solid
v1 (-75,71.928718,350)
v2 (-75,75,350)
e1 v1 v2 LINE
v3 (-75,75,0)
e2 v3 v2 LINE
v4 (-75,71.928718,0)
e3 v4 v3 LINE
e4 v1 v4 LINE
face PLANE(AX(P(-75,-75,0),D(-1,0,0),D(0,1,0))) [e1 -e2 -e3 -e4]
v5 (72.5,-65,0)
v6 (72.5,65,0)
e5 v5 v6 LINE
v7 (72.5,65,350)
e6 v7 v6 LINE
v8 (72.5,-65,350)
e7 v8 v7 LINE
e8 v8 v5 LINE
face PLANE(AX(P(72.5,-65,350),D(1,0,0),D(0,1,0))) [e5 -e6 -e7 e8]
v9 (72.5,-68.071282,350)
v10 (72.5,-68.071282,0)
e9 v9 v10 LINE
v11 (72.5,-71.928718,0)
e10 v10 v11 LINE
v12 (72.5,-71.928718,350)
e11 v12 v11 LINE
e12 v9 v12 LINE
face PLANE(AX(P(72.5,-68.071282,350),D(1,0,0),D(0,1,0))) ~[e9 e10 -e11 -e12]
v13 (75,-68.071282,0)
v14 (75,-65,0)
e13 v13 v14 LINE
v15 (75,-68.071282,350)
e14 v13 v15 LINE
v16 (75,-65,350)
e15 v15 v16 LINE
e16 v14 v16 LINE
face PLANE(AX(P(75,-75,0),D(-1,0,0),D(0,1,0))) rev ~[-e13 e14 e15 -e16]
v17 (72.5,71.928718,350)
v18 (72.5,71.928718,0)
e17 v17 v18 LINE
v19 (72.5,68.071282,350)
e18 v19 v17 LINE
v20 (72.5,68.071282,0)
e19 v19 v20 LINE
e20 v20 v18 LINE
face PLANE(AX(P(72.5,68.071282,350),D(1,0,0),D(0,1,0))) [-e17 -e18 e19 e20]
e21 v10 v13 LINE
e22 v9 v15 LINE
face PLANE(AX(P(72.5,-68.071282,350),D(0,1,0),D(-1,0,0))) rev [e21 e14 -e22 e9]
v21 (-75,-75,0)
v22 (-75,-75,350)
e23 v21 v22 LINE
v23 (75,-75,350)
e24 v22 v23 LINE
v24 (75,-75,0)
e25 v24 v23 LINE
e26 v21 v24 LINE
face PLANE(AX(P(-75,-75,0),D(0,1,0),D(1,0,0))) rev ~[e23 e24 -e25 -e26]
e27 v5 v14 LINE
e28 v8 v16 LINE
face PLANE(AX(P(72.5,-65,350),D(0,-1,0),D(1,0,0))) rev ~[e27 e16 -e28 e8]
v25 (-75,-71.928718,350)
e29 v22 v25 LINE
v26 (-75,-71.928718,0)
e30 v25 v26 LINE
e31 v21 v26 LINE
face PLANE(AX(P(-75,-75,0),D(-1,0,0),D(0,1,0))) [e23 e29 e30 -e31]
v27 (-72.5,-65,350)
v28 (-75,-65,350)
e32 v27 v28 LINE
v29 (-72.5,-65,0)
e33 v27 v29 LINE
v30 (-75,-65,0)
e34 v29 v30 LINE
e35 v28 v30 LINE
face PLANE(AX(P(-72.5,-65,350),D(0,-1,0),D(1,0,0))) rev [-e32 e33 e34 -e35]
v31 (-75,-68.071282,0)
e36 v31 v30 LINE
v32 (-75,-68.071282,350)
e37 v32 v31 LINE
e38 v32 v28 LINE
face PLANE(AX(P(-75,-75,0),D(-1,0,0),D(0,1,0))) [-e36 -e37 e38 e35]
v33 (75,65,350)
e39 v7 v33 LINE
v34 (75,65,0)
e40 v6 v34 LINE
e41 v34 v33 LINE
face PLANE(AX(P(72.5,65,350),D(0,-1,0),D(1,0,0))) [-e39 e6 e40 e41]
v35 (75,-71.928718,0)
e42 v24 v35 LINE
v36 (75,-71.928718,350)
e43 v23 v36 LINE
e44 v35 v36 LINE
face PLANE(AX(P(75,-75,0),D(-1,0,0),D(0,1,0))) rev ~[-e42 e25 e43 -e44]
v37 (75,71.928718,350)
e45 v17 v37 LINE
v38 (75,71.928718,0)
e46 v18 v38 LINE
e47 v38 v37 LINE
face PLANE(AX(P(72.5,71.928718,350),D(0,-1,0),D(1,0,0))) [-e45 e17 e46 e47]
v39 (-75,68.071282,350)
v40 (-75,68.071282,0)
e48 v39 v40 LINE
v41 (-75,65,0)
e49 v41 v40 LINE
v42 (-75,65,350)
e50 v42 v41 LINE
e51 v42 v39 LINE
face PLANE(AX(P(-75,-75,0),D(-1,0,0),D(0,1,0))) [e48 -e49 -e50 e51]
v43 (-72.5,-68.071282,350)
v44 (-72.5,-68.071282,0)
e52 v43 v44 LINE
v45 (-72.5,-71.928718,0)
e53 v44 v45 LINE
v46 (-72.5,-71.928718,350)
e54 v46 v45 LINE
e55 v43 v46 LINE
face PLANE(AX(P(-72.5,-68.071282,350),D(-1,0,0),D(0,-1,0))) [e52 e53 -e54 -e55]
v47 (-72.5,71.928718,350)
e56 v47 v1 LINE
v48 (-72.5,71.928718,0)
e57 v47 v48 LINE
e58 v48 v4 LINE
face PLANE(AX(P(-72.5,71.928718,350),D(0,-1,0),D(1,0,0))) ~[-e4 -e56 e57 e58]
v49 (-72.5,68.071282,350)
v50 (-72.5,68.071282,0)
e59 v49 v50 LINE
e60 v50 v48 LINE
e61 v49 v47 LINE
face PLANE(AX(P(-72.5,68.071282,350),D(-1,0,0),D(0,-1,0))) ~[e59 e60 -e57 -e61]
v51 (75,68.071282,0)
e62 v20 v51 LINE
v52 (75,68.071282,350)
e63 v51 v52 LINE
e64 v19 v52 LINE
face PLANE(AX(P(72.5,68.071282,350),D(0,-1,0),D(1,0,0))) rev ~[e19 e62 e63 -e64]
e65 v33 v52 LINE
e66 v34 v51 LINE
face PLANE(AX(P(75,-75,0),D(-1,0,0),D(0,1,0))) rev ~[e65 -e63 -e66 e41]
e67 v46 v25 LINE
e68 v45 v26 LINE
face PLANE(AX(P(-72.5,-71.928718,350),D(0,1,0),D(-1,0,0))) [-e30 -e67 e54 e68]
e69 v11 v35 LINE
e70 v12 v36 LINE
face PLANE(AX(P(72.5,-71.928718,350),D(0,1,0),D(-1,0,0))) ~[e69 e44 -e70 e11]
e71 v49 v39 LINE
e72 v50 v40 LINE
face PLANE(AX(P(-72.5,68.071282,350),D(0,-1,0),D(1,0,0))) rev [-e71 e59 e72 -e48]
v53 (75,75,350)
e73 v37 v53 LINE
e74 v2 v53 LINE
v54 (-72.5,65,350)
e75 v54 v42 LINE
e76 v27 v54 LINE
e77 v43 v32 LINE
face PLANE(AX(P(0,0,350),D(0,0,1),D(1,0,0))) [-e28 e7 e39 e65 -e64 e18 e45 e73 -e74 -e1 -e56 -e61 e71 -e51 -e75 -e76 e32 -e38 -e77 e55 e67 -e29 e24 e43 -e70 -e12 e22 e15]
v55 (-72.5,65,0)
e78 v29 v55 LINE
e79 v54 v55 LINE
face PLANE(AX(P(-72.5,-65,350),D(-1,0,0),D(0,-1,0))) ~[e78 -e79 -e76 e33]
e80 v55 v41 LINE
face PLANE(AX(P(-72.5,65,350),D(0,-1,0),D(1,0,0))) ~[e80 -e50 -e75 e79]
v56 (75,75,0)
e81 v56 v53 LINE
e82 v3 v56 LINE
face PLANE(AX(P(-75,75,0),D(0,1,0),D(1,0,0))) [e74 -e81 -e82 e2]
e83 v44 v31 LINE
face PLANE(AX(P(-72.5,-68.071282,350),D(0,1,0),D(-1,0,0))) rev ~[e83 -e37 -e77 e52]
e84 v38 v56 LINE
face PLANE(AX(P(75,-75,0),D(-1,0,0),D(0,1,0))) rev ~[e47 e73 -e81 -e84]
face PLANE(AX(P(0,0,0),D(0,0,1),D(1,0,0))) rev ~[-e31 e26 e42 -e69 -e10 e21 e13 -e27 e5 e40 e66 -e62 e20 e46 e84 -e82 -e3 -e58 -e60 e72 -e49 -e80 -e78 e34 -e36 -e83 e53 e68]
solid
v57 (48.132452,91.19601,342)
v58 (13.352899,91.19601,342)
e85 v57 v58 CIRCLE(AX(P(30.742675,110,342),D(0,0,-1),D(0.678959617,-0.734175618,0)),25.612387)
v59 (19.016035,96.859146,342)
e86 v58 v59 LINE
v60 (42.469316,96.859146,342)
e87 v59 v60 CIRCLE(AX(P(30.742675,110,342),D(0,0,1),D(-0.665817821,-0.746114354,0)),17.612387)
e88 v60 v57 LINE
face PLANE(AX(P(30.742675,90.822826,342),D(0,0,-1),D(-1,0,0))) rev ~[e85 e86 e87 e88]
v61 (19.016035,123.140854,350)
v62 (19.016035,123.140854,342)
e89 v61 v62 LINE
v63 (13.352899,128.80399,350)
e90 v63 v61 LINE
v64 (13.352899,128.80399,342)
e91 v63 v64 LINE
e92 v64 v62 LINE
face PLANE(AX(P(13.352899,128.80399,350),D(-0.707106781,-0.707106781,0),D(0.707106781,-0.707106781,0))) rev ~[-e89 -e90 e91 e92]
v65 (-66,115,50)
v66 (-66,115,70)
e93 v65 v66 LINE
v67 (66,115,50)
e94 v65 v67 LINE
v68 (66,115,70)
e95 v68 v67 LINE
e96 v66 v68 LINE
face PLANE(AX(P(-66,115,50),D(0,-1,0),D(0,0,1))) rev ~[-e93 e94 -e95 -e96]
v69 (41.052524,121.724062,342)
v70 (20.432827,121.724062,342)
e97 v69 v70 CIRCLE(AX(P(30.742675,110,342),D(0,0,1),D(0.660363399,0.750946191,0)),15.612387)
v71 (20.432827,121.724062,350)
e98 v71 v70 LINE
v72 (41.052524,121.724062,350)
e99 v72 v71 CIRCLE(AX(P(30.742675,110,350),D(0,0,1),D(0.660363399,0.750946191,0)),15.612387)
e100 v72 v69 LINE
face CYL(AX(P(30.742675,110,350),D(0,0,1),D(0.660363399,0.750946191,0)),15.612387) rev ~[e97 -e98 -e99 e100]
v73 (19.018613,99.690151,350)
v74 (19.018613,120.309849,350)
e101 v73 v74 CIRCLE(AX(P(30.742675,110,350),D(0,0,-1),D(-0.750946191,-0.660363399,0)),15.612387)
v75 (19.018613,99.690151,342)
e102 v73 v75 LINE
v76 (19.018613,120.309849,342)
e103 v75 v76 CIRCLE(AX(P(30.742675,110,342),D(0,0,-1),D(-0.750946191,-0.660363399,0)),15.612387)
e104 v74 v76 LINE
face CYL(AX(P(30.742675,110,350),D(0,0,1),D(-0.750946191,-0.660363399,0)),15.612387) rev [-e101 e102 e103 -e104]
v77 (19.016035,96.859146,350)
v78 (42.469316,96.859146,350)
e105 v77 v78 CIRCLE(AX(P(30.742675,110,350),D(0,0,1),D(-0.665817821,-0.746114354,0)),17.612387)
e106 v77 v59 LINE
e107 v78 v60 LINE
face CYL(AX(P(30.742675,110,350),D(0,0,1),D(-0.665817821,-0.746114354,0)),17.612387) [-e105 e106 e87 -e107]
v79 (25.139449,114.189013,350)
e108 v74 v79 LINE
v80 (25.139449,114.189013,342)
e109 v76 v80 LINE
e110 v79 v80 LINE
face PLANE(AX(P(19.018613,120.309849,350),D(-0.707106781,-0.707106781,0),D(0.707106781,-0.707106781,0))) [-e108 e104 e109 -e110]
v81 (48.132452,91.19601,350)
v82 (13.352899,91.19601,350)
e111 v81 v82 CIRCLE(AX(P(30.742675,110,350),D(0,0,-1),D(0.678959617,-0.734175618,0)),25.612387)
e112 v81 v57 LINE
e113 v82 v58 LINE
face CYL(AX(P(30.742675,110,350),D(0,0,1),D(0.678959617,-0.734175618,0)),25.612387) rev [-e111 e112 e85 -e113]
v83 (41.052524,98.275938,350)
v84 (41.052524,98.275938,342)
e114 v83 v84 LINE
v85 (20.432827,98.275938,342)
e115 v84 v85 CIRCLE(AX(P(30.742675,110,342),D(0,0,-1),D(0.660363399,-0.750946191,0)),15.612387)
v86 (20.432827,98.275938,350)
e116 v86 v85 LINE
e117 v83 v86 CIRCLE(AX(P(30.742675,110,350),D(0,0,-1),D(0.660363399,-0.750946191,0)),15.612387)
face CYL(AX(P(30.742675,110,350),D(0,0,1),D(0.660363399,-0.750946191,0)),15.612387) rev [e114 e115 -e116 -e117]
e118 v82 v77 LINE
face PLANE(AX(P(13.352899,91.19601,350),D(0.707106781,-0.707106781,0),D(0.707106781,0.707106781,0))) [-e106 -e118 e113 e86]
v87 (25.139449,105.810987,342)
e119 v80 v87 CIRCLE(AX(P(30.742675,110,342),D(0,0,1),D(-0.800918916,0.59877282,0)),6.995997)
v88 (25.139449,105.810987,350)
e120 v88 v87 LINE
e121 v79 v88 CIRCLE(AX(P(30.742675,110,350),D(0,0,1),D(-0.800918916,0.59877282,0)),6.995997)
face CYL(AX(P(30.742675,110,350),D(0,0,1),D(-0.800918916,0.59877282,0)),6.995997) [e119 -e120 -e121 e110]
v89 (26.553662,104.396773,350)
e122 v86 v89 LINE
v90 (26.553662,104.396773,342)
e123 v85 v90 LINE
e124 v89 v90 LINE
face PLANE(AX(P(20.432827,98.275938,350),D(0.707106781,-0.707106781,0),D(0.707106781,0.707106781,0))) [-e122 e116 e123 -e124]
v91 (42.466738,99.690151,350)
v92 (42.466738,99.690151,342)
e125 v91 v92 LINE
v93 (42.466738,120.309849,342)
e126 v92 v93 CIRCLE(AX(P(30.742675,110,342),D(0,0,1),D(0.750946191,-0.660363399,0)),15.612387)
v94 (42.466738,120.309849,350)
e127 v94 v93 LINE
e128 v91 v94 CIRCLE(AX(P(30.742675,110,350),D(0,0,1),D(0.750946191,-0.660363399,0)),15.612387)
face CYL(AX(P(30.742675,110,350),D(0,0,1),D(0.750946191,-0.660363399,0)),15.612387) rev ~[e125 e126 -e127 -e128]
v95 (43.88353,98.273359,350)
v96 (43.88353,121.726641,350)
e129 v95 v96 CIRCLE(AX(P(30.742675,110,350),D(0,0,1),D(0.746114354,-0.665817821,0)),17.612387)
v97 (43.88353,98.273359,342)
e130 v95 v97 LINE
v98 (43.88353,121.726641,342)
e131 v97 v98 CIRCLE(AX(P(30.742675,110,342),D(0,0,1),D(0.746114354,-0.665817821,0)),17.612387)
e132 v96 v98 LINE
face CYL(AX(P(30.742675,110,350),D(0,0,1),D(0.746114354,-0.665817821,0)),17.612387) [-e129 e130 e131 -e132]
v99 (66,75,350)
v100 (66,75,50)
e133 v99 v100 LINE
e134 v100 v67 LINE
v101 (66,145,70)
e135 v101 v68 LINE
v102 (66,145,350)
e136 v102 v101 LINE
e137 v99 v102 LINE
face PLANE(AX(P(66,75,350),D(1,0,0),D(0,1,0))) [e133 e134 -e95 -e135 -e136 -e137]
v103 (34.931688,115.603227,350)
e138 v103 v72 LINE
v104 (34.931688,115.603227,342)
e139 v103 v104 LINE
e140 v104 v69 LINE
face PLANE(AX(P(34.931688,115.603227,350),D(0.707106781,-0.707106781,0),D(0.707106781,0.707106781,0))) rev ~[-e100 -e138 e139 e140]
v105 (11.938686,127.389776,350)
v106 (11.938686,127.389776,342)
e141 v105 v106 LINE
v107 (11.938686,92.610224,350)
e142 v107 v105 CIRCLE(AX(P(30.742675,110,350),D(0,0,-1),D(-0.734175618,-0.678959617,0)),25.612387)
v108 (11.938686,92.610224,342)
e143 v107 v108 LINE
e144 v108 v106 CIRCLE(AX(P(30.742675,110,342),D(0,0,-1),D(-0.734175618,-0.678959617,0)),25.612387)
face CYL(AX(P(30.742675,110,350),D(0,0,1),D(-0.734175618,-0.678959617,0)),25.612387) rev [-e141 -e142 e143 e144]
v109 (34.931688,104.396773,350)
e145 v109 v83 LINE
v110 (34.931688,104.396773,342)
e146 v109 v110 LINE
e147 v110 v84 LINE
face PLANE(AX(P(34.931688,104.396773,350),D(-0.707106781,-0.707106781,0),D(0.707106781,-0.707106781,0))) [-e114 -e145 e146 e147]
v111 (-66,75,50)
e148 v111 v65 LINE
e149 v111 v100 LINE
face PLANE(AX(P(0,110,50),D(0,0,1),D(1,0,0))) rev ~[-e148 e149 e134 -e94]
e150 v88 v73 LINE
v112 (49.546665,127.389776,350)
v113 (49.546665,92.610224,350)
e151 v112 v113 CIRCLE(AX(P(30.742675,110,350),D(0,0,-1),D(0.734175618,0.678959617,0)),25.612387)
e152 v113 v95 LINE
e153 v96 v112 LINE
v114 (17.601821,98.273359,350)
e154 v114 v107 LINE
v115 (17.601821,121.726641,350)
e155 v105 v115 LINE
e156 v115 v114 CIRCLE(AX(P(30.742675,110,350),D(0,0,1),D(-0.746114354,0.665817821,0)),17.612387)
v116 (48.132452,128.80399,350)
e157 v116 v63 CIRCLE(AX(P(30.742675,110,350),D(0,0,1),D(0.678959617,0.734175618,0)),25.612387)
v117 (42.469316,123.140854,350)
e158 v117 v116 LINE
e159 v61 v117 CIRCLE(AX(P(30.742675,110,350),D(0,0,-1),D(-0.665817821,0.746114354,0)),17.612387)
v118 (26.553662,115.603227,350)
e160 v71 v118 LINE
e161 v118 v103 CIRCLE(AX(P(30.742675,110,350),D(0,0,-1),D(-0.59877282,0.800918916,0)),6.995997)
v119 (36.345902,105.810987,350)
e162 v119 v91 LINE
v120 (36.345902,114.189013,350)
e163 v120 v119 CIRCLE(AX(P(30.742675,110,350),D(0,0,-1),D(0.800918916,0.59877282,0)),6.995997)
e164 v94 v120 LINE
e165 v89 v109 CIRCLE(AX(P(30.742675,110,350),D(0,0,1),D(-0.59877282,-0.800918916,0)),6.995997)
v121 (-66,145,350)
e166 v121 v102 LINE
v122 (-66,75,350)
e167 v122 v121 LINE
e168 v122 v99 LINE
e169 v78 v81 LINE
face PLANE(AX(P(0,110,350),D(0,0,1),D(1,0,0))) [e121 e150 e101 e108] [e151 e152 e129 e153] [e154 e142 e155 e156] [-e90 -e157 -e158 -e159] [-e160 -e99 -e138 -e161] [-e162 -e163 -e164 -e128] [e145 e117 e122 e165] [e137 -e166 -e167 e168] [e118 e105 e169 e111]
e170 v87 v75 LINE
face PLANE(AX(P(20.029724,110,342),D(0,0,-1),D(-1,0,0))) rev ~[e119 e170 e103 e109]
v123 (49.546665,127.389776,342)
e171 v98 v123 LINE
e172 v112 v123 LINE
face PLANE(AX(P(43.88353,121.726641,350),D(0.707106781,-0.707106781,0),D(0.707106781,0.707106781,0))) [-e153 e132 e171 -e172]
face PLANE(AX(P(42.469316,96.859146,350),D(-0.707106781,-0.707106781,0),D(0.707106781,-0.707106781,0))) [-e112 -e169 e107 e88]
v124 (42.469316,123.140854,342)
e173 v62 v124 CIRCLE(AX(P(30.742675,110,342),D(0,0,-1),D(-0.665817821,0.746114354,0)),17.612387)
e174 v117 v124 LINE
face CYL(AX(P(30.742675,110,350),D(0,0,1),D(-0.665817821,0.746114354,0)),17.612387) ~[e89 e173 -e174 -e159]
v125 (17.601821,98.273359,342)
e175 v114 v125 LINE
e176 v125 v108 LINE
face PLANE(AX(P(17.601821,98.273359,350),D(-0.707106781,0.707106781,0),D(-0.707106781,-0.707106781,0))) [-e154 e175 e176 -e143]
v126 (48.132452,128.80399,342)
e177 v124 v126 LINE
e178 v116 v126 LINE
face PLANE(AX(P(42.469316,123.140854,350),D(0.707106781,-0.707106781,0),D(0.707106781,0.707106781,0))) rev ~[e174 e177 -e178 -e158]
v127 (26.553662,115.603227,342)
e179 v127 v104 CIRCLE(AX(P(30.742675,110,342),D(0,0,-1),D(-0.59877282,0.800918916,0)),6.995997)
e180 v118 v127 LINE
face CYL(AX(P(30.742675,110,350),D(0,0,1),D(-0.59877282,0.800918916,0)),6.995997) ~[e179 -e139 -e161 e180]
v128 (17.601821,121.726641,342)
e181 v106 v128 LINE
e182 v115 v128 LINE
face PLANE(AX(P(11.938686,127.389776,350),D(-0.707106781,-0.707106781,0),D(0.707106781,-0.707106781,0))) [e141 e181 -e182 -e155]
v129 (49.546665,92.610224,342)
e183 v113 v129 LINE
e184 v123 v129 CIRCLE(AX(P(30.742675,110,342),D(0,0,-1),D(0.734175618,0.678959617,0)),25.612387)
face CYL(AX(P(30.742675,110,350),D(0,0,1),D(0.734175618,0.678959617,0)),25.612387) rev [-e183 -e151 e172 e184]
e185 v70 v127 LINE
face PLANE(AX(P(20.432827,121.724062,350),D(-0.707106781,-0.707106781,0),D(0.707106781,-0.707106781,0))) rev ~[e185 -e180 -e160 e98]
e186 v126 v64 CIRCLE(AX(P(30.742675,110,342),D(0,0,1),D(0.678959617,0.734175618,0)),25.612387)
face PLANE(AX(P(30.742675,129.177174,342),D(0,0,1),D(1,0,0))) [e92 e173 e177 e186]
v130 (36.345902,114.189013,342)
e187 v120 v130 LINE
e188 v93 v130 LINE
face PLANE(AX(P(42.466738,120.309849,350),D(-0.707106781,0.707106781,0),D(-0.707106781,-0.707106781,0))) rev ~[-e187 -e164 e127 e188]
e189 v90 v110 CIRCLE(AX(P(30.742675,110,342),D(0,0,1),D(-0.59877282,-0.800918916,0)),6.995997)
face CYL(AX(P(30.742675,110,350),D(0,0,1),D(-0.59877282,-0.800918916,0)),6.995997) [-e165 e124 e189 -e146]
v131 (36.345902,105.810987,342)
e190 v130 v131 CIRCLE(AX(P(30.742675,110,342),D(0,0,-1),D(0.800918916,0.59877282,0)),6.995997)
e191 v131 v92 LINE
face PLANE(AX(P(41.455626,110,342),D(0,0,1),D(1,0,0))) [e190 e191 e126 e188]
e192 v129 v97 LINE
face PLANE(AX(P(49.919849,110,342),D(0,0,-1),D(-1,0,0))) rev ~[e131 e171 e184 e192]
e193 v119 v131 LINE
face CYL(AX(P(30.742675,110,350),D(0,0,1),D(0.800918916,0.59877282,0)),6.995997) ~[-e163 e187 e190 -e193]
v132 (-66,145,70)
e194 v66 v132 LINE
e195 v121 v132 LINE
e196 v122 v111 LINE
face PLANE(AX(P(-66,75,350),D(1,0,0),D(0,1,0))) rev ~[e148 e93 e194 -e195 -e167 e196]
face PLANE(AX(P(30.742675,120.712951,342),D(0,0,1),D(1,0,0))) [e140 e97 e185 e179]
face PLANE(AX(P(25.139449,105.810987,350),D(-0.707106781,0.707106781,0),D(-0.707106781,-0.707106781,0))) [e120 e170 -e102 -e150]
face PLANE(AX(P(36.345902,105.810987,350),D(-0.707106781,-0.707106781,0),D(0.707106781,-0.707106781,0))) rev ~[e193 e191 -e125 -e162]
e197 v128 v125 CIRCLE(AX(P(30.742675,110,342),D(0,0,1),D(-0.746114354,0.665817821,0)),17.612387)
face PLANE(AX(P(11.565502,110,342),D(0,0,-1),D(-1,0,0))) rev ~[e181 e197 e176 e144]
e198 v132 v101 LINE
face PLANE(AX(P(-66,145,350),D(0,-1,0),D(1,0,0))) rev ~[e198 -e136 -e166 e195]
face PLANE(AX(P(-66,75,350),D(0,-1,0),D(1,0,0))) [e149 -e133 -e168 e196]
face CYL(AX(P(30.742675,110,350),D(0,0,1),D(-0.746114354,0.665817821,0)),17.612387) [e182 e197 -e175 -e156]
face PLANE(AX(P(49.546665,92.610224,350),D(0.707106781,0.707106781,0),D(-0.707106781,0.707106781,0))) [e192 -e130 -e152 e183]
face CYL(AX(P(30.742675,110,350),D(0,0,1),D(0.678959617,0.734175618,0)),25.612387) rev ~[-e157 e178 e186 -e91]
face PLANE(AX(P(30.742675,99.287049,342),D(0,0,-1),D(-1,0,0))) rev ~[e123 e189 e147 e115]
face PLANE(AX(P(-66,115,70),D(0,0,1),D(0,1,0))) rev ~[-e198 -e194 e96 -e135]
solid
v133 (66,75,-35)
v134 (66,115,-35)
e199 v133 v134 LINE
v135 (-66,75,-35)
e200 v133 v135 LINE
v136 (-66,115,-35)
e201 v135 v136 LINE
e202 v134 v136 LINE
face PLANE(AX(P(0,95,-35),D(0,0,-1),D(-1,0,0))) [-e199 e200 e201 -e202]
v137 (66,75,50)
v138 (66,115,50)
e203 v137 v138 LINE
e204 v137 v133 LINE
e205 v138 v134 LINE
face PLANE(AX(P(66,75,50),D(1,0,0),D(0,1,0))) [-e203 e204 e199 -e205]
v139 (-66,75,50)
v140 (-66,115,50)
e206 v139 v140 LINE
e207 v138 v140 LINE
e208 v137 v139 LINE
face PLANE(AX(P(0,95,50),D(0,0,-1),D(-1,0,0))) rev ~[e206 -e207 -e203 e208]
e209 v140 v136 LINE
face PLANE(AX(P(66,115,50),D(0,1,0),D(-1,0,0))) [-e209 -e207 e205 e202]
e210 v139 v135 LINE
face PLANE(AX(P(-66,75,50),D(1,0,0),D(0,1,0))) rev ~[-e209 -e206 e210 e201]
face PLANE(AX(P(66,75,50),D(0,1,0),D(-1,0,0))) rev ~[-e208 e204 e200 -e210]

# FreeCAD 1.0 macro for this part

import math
import FreeCAD as App
import Part
import Sketcher

V = App.Vector
Q = App.Units.Quantity

doc = App.newDocument("Part")
body = doc.addObject("PartDesign::Body", "Body")

# Sketch on XY plane
sketch1 = doc.addObject("Sketcher::SketchObject", "Sketch")
body.addObject(sketch1)
sketch1.AttachmentSupport = (doc.XY_Plane, [""])
sketch1.MapMode = "FlatFace"
sketch1.addGeometry(Part.LineSegment(V(-75, 75, 0), V(-75, -75, 0)), False)
sketch1.addGeometry(Part.LineSegment(V(-75, -75, 0), V(75, -75, 0)), False)
sketch1.addGeometry(Part.LineSegment(V(75, -75, 0), V(75, 75, 0)), False)
sketch1.addGeometry(Part.LineSegment(V(75, 75, 0), V(-75, 75, 0)), False)
sketch1.addConstraint(Sketcher.Constraint("Coincident", 0, 2, 1, 1))
sketch1.addConstraint(Sketcher.Constraint("Coincident", 1, 2, 2, 1))
sketch1.addConstraint(Sketcher.Constraint("Coincident", 2, 2, 3, 1))
sketch1.addConstraint(Sketcher.Constraint("Coincident", 3, 2, 0, 1))
sketch1.addConstraint(Sketcher.Constraint("Vertical", 0))
sketch1.addConstraint(Sketcher.Constraint("Horizontal", 1))
sketch1.addConstraint(Sketcher.Constraint("Vertical", 2))
sketch1.addConstraint(Sketcher.Constraint("Horizontal", 3))
sketch1.addConstraint(Sketcher.Constraint("Symmetric", 0, 2, 2, 2, -1, 1))
sketch1.addConstraint(Sketcher.Constraint("Equal", 3, 0))
sketch1.addConstraint(Sketcher.Constraint("DistanceX", 1, 1, 1, 2, Q("150 mm")))
pad1 = doc.addObject("PartDesign::Pad", "Pad")
body.addObject(pad1)
pad1.Profile = sketch1
pad1.Length = 350

# Sketch on XY plane
sketch2 = doc.addObject("Sketcher::SketchObject", "Sketch001")
body.addObject(sketch2)
sketch2.AttachmentSupport = (doc.XY_Plane, [""])
sketch2.MapMode = "FlatFace"
sketch2.AttachmentOffset = App.Placement(V(0, 0, 350), App.Rotation())
sketch2.addGeometry(Part.LineSegment(V(72, 65, 0), V(72, -65, 0)), False)
sketch2.addGeometry(Part.LineSegment(V(72, -65, 0), V(78, -65, 0)), False)
sketch2.addGeometry(Part.LineSegment(V(78, -65, 0), V(78, 65, 0)), False)
sketch2.addGeometry(Part.LineSegment(V(78, 65, 0), V(72, 65, 0)), False)
sketch2.addConstraint(Sketcher.Constraint("Coincident", 0, 2, 1, 1))
sketch2.addConstraint(Sketcher.Constraint("Coincident", 1, 2, 2, 1))
sketch2.addConstraint(Sketcher.Constraint("Coincident", 2, 2, 3, 1))
sketch2.addConstraint(Sketcher.Constraint("Coincident", 3, 2, 0, 1))
sketch2.addConstraint(Sketcher.Constraint("Vertical", 0))
sketch2.addConstraint(Sketcher.Constraint("Horizontal", 1))
sketch2.addConstraint(Sketcher.Constraint("Vertical", 2))
sketch2.addConstraint(Sketcher.Constraint("Horizontal", 3))
sketch2.addConstraint(Sketcher.Constraint("DistanceX", 1, 1, 1, 2, Q("5 mm")))
sketch2.addConstraint(Sketcher.Constraint("DistanceY", 0, 2, 0, 1, Q("130 mm")))
sketch2.addConstraint(Sketcher.Constraint("DistanceY", 0, 2, -1, 1, Q("65 mm")))
sketch2.addConstraint(Sketcher.Constraint("DistanceX", -1, 1, 0, 2, Q("72.5 mm")))
pocket1 = doc.addObject("PartDesign::Pocket", "Pocket")
body.addObject(pocket1)
pocket1.Profile = sketch2
pocket1.Length = 448

# Sketch on XY plane
sketch3 = doc.addObject("Sketcher::SketchObject", "Sketch002")
body.addObject(sketch3)
sketch3.AttachmentSupport = (doc.XY_Plane, [""])
sketch3.MapMode = "FlatFace"
sketch3.AttachmentOffset = App.Placement(V(0, 0, 350), App.Rotation())
sketch3.addGeometry(Part.LineSegment(V(72.5, 71.9, 0), V(72.5, 68.1, 0)), False)
sketch3.addGeometry(Part.LineSegment(V(72.5, 68.1, 0), V(77.5, 68.1, 0)), False)
sketch3.addGeometry(Part.LineSegment(V(77.5, 68.1, 0), V(77.5, 71.9, 0)), False)
sketch3.addGeometry(Part.LineSegment(V(77.5, 71.9, 0), V(72.5, 71.9, 0)), False)
sketch3.addConstraint(Sketcher.Constraint("Coincident", 0, 2, 1, 1))
sketch3.addConstraint(Sketcher.Constraint("Coincident", 1, 2, 2, 1))
sketch3.addConstraint(Sketcher.Constraint("Coincident", 2, 2, 3, 1))
sketch3.addConstraint(Sketcher.Constraint("Coincident", 3, 2, 0, 1))
sketch3.addConstraint(Sketcher.Constraint("Vertical", 0))
sketch3.addConstraint(Sketcher.Constraint("Horizontal", 1))
sketch3.addConstraint(Sketcher.Constraint("Vertical", 2))
sketch3.addConstraint(Sketcher.Constraint("Horizontal", 3))
sketch3.addConstraint(Sketcher.Constraint("DistanceX", 1, 1, 1, 2, Q("5 mm")))
sketch3.addConstraint(Sketcher.Constraint("DistanceX", -1, 1, 0, 2, Q("72.5 mm")))
sketch3.addConstraint(Sketcher.Constraint("DistanceY", 0, 2, 0, 1, Q("3.857436 mm")))
sketch3.addConstraint(Sketcher.Constraint("DistanceY", -1, 1, 0, 2, Q("68.071282 mm")))
pocket2 = doc.addObject("PartDesign::Pocket", "Pocket001")
body.addObject(pocket2)
pocket2.Profile = sketch3
pocket2.Length = 448
doc.recompute()

mirrored = doc.addObject("PartDesign::Mirrored", "Mirrored")
body.addObject(mirrored)
mirrored.Originals = [pocket2]
mirrored.MirrorPlane = (doc.XZ_Plane, [""])
body.Tip = mirrored
doc.recompute()

mirrored2 = doc.addObject("PartDesign::Mirrored", "Mirrored001")
body.addObject(mirrored2)
mirrored2.Originals = [pocket1, pocket2]
mirrored2.MirrorPlane = (doc.YZ_Plane, [""])
body.Tip = mirrored2

# Sketch on XY plane
sketch4 = doc.addObject("Sketcher::SketchObject", "Sketch003")
body.addObject(sketch4)
sketch4.AttachmentSupport = (doc.XY_Plane, [""])
sketch4.MapMode = "FlatFace"
sketch4.AttachmentOffset = App.Placement(V(0, 0, 350), App.Rotation())
sketch4.addGeometry(Part.LineSegment(V(-72.5, -71.9, 0), V(-72.5, -68.1, 0)), False)
sketch4.addGeometry(Part.LineSegment(V(-72.5, -68.1, 0), V(-77.5, -68.1, 0)), False)
sketch4.addGeometry(Part.LineSegment(V(-77.5, -68.1, 0), V(-77.5, -71.9, 0)), False)
sketch4.addGeometry(Part.LineSegment(V(-77.5, -71.9, 0), V(-72.5, -71.9, 0)), False)
sketch4.addConstraint(Sketcher.Constraint("Coincident", 0, 2, 1, 1))
sketch4.addConstraint(Sketcher.Constraint("Coincident", 1, 2, 2, 1))
sketch4.addConstraint(Sketcher.Constraint("Coincident", 2, 2, 3, 1))
sketch4.addConstraint(Sketcher.Constraint("Coincident", 3, 2, 0, 1))
sketch4.addConstraint(Sketcher.Constraint("Vertical", 0))
sketch4.addConstraint(Sketcher.Constraint("Horizontal", 1))
sketch4.addConstraint(Sketcher.Constraint("Vertical", 2))
sketch4.addConstraint(Sketcher.Constraint("Horizontal", 3))
sketch4.addConstraint(Sketcher.Constraint("DistanceX", 1, 2, 1, 1, Q("5 mm")))
sketch4.addConstraint(Sketcher.Constraint("DistanceX", 0, 2, -1, 1, Q("72.5 mm")))
sketch4.addConstraint(Sketcher.Constraint("DistanceY", 0, 1, 0, 2, Q("3.857436 mm")))
sketch4.addConstraint(Sketcher.Constraint("DistanceY", 0, 2, -1, 1, Q("68.071282 mm")))
pocket3 = doc.addObject("PartDesign::Pocket", "Pocket002")
body.addObject(pocket3)
pocket3.Profile = sketch4
pocket3.Length = 448
body2 = doc.addObject("PartDesign::Body", "Body001")

# Sketch on XY plane
sketch5 = doc.addObject("Sketcher::SketchObject", "Sketch004")
body2.addObject(sketch5)
sketch5.AttachmentSupport = (doc.getObject("XY_Plane001"), [""])
sketch5.MapMode = "FlatFace"
sketch5.AttachmentOffset = App.Placement(V(0, 0, 350), App.Rotation())
sketch5.addGeometry(Part.LineSegment(V(-66, 145, 0), V(-66, 75, 0)), False)
sketch5.addGeometry(Part.LineSegment(V(-66, 75, 0), V(66, 75, 0)), False)
sketch5.addGeometry(Part.LineSegment(V(66, 75, 0), V(66, 145, 0)), False)
sketch5.addGeometry(Part.LineSegment(V(66, 145, 0), V(-66, 145, 0)), False)
sketch5.addConstraint(Sketcher.Constraint("Coincident", 0, 2, 1, 1))
sketch5.addConstraint(Sketcher.Constraint("Coincident", 1, 2, 2, 1))
sketch5.addConstraint(Sketcher.Constraint("Coincident", 2, 2, 3, 1))
sketch5.addConstraint(Sketcher.Constraint("Coincident", 3, 2, 0, 1))
sketch5.addConstraint(Sketcher.Constraint("Vertical", 0))
sketch5.addConstraint(Sketcher.Constraint("Horizontal", 1))
sketch5.addConstraint(Sketcher.Constraint("Vertical", 2))
sketch5.addConstraint(Sketcher.Constraint("Horizontal", 3))
sketch5.addConstraint(Sketcher.Constraint("DistanceX", 1, 1, 1, 2, Q("132 mm")))
sketch5.addConstraint(Sketcher.Constraint("DistanceY", 0, 2, 0, 1, Q("70 mm")))
sketch5.addConstraint(Sketcher.Constraint("DistanceX", 0, 2, -1, 1, Q("66 mm")))
sketch5.addConstraint(Sketcher.Constraint("DistanceY", -1, 1, 0, 2, Q("75 mm")))
pad2 = doc.addObject("PartDesign::Pad", "Pad001")
body2.addObject(pad2)
pad2.Profile = sketch5
pad2.Length = 300
pad2.Reversed = True

# Sketch on YZ plane
sketch6 = doc.addObject("Sketcher::SketchObject", "Sketch005")
body2.addObject(sketch6)
sketch6.AttachmentSupport = (doc.getObject("YZ_Plane001"), [""])
sketch6.MapMode = "FlatFace"
sketch6.AttachmentOffset = App.Placement(V(0, 0, -66), App.Rotation())
sketch6.addGeometry(Part.LineSegment(V(145, 50, 0), V(115, 50, 0)), False)
sketch6.addGeometry(Part.LineSegment(V(115, 50, 0), V(115, 70, 0)), False)
sketch6.addGeometry(Part.LineSegment(V(115, 70, 0), V(145, 70, 0)), False)
sketch6.addGeometry(Part.LineSegment(V(145, 70, 0), V(145, 50, 0)), False)
sketch6.addConstraint(Sketcher.Constraint("Coincident", 0, 2, 1, 1))
sketch6.addConstraint(Sketcher.Constraint("Coincident", 1, 2, 2, 1))
sketch6.addConstraint(Sketcher.Constraint("Coincident", 2, 2, 3, 1))
sketch6.addConstraint(Sketcher.Constraint("Coincident", 3, 2, 0, 1))
sketch6.addConstraint(Sketcher.Constraint("Horizontal", 0))
sketch6.addConstraint(Sketcher.Constraint("Vertical", 1))
sketch6.addConstraint(Sketcher.Constraint("Horizontal", 2))
sketch6.addConstraint(Sketcher.Constraint("Vertical", 3))
sketch6.addConstraint(Sketcher.Constraint("DistanceX", 0, 2, 0, 1, Q("30 mm")))
sketch6.addConstraint(Sketcher.Constraint("DistanceY", 1, 1, 1, 2, Q("20 mm")))
sketch6.addConstraint(Sketcher.Constraint("DistanceX", -1, 1, 0, 2, Q("115 mm")))
sketch6.addConstraint(Sketcher.Constraint("DistanceY", -1, 1, 0, 2, Q("50 mm")))
pocket4 = doc.addObject("PartDesign::Pocket", "Pocket003")
body2.addObject(pocket4)
pocket4.Profile = sketch6
pocket4.Length = 300
pocket4.Reversed = True

# Sketch on XY plane
sketch7 = doc.addObject("Sketcher::SketchObject", "Sketch006")
body2.addObject(sketch7)
sketch7.AttachmentSupport = (doc.getObject("XY_Plane001"), [""])
sketch7.MapMode = "FlatFace"
sketch7.AttachmentOffset = App.Placement(V(0, 0, 350), App.Rotation())
sketch7.addGeometry(Part.LineSegment(V(41, 98, 0), V(35, 104, 0)), False)
sketch7.addGeometry(Part.ArcOfCircle(Part.Circle(V(31, 110, 0), V(0, 0, 1), 7), math.radians(-127), math.radians(-53)), False)
sketch7.addGeometry(Part.LineSegment(V(27, 104, 0), V(20, 98, 0)), False)
sketch7.addGeometry(Part.ArcOfCircle(Part.Circle(V(31, 110, 0), V(0, 0, 1), 16), math.radians(-131), math.radians(-49)), False)
sketch7.addGeometry(Part.LineSegment(V(36, 106, 0), V(42, 100, 0)), False)
sketch7.addGeometry(Part.ArcOfCircle(Part.Circle(V(31, 110, 0), V(0, 0, 1), 16), math.radians(-41), math.radians(41)), False)
sketch7.addGeometry(Part.LineSegment(V(42, 120, 0), V(36, 114, 0)), False)
sketch7.addGeometry(Part.ArcOfCircle(Part.Circle(V(31, 110, 0), V(0, 0, 1), 7), math.radians(-37), math.radians(37)), False)
sketch7.addGeometry(Part.LineSegment(V(50, 127, 0), V(44, 122, 0)), False)
sketch7.addGeometry(Part.ArcOfCircle(Part.Circle(V(31, 110, 0), V(0, 0, 1), 18), math.radians(-42), math.radians(42)), False)
sketch7.addGeometry(Part.LineSegment(V(44, 98, 0), V(50, 93, 0)), False)
sketch7.addGeometry(Part.ArcOfCircle(Part.Circle(V(31, 110, 0), V(0, 0, 1), 26), math.radians(-43), math.radians(43)), False)
sketch7.addGeometry(Part.LineSegment(V(35, 116, 0), V(41, 122, 0)), False)
sketch7.addGeometry(Part.ArcOfCircle(Part.Circle(V(31, 110, 0), V(0, 0, 1), 16), math.radians(49), math.radians(131)), False)
sketch7.addGeometry(Part.LineSegment(V(20, 122, 0), V(27, 116, 0)), False)
sketch7.addGeometry(Part.ArcOfCircle(Part.Circle(V(31, 110, 0), V(0, 0, 1), 7), math.radians(53), math.radians(127)), False)
sketch7.addGeometry(Part.LineSegment(V(42, 123, 0), V(48, 129, 0)), False)
sketch7.addGeometry(Part.ArcOfCircle(Part.Circle(V(31, 110, 0), V(0, 0, 1), 26), math.radians(47), math.radians(133)), False)
sketch7.addGeometry(Part.LineSegment(V(13, 129, 0), V(19, 123, 0)), False)
sketch7.addGeometry(Part.ArcOfCircle(Part.Circle(V(31, 110, 0), V(0, 0, 1), 18), math.radians(48), math.radians(132)), False)
sketch7.addGeometry(Part.LineSegment(V(48, 91, 0), V(42, 97, 0)), False)
sketch7.addGeometry(Part.ArcOfCircle(Part.Circle(V(31, 110, 0), V(0, 0, 1), 18), math.radians(-132), math.radians(-48)), False)
sketch7.addGeometry(Part.LineSegment(V(19, 97, 0), V(13, 91, 0)), False)
sketch7.addGeometry(Part.ArcOfCircle(Part.Circle(V(31, 110, 0), V(0, 0, 1), 26), math.radians(-133), math.radians(-47)), False)
sketch7.addGeometry(Part.LineSegment(V(19, 100, 0), V(25, 106, 0)), False)
sketch7.addGeometry(Part.ArcOfCircle(Part.Circle(V(31, 110, 0), V(0, 0, 1), 7), math.radians(143), math.radians(217)), False)
sketch7.addGeometry(Part.LineSegment(V(25, 114, 0), V(19, 120, 0)), False)
sketch7.addGeometry(Part.ArcOfCircle(Part.Circle(V(31, 110, 0), V(0, 0, 1), 16), math.radians(139), math.radians(221)), False)
sketch7.addGeometry(Part.LineSegment(V(12, 93, 0), V(18, 98, 0)), False)
sketch7.addGeometry(Part.ArcOfCircle(Part.Circle(V(31, 110, 0), V(0, 0, 1), 18), math.radians(138), math.radians(222)), False)
sketch7.addGeometry(Part.LineSegment(V(18, 122, 0), V(12, 127, 0)), False)
sketch7.addGeometry(Part.ArcOfCircle(Part.Circle(V(31, 110, 0), V(0, 0, 1), 26), math.radians(137), math.radians(223)), False)
sketch7.addConstraint(Sketcher.Constraint("Coincident", 0, 2, 1, 2))
sketch7.addConstraint(Sketcher.Constraint("Coincident", 1, 1, 2, 1))
sketch7.addConstraint(Sketcher.Constraint("Coincident", 2, 2, 3, 1))
sketch7.addConstraint(Sketcher.Constraint("Coincident", 3, 2, 0, 1))
sketch7.addConstraint(Sketcher.Constraint("Coincident", 4, 2, 5, 1))
sketch7.addConstraint(Sketcher.Constraint("Coincident", 5, 2, 6, 1))
sketch7.addConstraint(Sketcher.Constraint("Coincident", 6, 2, 7, 2))
sketch7.addConstraint(Sketcher.Constraint("Coincident", 7, 1, 4, 1))
sketch7.addConstraint(Sketcher.Constraint("Coincident", 8, 2, 9, 2))
sketch7.addConstraint(Sketcher.Constraint("Coincident", 9, 1, 10, 1))
sketch7.addConstraint(Sketcher.Constraint("Coincident", 10, 2, 11, 1))
sketch7.addConstraint(Sketcher.Constraint("Coincident", 11, 2, 8, 1))
sketch7.addConstraint(Sketcher.Constraint("Coincident", 12, 2, 13, 1))
sketch7.addConstraint(Sketcher.Constraint("Coincident", 13, 2, 14, 1))
sketch7.addConstraint(Sketcher.Constraint("Coincident", 14, 2, 15, 2))
sketch7.addConstraint(Sketcher.Constraint("Coincident", 15, 1, 12, 1))
sketch7.addConstraint(Sketcher.Constraint("Coincident", 16, 2, 17, 1))
sketch7.addConstraint(Sketcher.Constraint("Coincident", 17, 2, 18, 1))
sketch7.addConstraint(Sketcher.Constraint("Coincident", 18, 2, 19, 2))
sketch7.addConstraint(Sketcher.Constraint("Coincident", 19, 1, 16, 1))
sketch7.addConstraint(Sketcher.Constraint("Coincident", 20, 2, 21, 2))
sketch7.addConstraint(Sketcher.Constraint("Coincident", 21, 1, 22, 1))
sketch7.addConstraint(Sketcher.Constraint("Coincident", 22, 2, 23, 1))
sketch7.addConstraint(Sketcher.Constraint("Coincident", 23, 2, 20, 1))
sketch7.addConstraint(Sketcher.Constraint("Coincident", 24, 2, 25, 2))
sketch7.addConstraint(Sketcher.Constraint("Coincident", 25, 1, 26, 1))
sketch7.addConstraint(Sketcher.Constraint("Coincident", 26, 2, 27, 1))
sketch7.addConstraint(Sketcher.Constraint("Coincident", 27, 2, 24, 1))
sketch7.addConstraint(Sketcher.Constraint("Coincident", 28, 2, 29, 2))
sketch7.addConstraint(Sketcher.Constraint("Coincident", 29, 1, 30, 1))
sketch7.addConstraint(Sketcher.Constraint("Coincident", 30, 2, 31, 1))
sketch7.addConstraint(Sketcher.Constraint("Coincident", 31, 2, 28, 1))
sketch7.addConstraint(Sketcher.Constraint("Coincident", 3, 3, 1, 3))
sketch7.addConstraint(Sketcher.Constraint("Coincident", 5, 3, 1, 3))
sketch7.addConstraint(Sketcher.Constraint("Coincident", 7, 3, 1, 3))
sketch7.addConstraint(Sketcher.Constraint("Coincident", 9, 3, 1, 3))
sketch7.addConstraint(Sketcher.Constraint("Coincident", 11, 3, 1, 3))
sketch7.addConstraint(Sketcher.Constraint("Coincident", 13, 3, 1, 3))
sketch7.addConstraint(Sketcher.Constraint("Coincident", 15, 3, 1, 3))
sketch7.addConstraint(Sketcher.Constraint("Coincident", 17, 3, 1, 3))
sketch7.addConstraint(Sketcher.Constraint("Coincident", 19, 3, 1, 3))
sketch7.addConstraint(Sketcher.Constraint("Coincident", 21, 3, 1, 3))
sketch7.addConstraint(Sketcher.Constraint("Coincident", 23, 3, 1, 3))
sketch7.addConstraint(Sketcher.Constraint("Coincident", 25, 3, 1, 3))
sketch7.addConstraint(Sketcher.Constraint("Coincident", 27, 3, 1, 3))
sketch7.addConstraint(Sketcher.Constraint("Coincident", 29, 3, 1, 3))
sketch7.addConstraint(Sketcher.Constraint("Coincident", 31, 3, 1, 3))
sketch7.addConstraint(Sketcher.Constraint("Equal", 3, 5))
sketch7.addConstraint(Sketcher.Constraint("Equal", 1, 7))
sketch7.addConstraint(Sketcher.Constraint("Equal", 5, 13))
sketch7.addConstraint(Sketcher.Constraint("Equal", 7, 15))
sketch7.addConstraint(Sketcher.Constraint("Equal", 11, 17))
sketch7.addConstraint(Sketcher.Constraint("Equal", 9, 19))
sketch7.addConstraint(Sketcher.Constraint("Equal", 19, 21))
sketch7.addConstraint(Sketcher.Constraint("Equal", 17, 23))
sketch7.addConstraint(Sketcher.Constraint("Equal", 15, 25))
sketch7.addConstraint(Sketcher.Constraint("Equal", 13, 27))
sketch7.addConstraint(Sketcher.Constraint("Equal", 21, 29))
sketch7.addConstraint(Sketcher.Constraint("Equal", 23, 31))
sketch7.addConstraint(Sketcher.Constraint("Perpendicular", 0, 2))
sketch7.addConstraint(Sketcher.Constraint("Perpendicular", 2, 4))
sketch7.addConstraint(Sketcher.Constraint("Perpendicular", 4, 6))
sketch7.addConstraint(Sketcher.Constraint("Parallel", 6, 8))
sketch7.addConstraint(Sketcher.Constraint("Perpendicular", 8, 10))
sketch7.addConstraint(Sketcher.Constraint("Perpendicular", 10, 12))
sketch7.addConstraint(Sketcher.Constraint("Perpendicular", 12, 14))
sketch7.addConstraint(Sketcher.Constraint("Perpendicular", 14, 16))
sketch7.addConstraint(Sketcher.Constraint("Perpendicular", 16, 18))
sketch7.addConstraint(Sketcher.Constraint("Parallel", 18, 20))
sketch7.addConstraint(Sketcher.Constraint("Perpendicular", 20, 22))
sketch7.addConstraint(Sketcher.Constraint("Parallel", 22, 24))
sketch7.addConstraint(Sketcher.Constraint("Perpendicular", 24, 26))
sketch7.addConstraint(Sketcher.Constraint("Perpendicular", 26, 28))
sketch7.addConstraint(Sketcher.Constraint("Perpendicular", 28, 30))
sketch7.addConstraint(Sketcher.Constraint("Horizontal", 0, 2, 1, 1))
sketch7.addConstraint(Sketcher.Constraint("Horizontal", 2, 2, 3, 2))
sketch7.addConstraint(Sketcher.Constraint("Horizontal", 12, 2, 13, 2))
sketch7.addConstraint(Sketcher.Constraint("Horizontal", 16, 2, 17, 2))
sketch7.addConstraint(Sketcher.Constraint("Horizontal", 20, 2, 21, 1))
sketch7.addConstraint(Sketcher.Constraint("Horizontal", 7, 1, 24, 2))
sketch7.addConstraint(Sketcher.Constraint("Horizontal", 6, 2, 25, 1))
sketch7.addConstraint(Sketcher.Constraint("Horizontal", 9, 1, 28, 2))
sketch7.addConstraint(Sketcher.Constraint("Horizontal", 8, 2, 29, 1))
sketch7.addConstraint(Sketcher.Constraint("Vertical", 4, 2, 5, 2))
sketch7.addConstraint(Sketcher.Constraint("Vertical", 8, 2, 9, 1))
sketch7.addConstraint(Sketcher.Constraint("Vertical", 3, 2, 12, 2))
sketch7.addConstraint(Sketcher.Constraint("Vertical", 19, 1, 20, 2))
sketch7.addConstraint(Sketcher.Constraint("Equal", 2, 4))
sketch7.addConstraint(Sketcher.Constraint("Equal", 10, 16))
sketch7.addConstraint(Sketcher.Constraint("DistanceY", -1, 1, 1, 3, Q("110 mm")))
sketch7.addConstraint(Sketcher.Constraint("Radius", 1, Q("6.995997 mm")))
sketch7.addConstraint(Sketcher.Constraint("Radius", 3, Q("15.612387 mm")))
sketch7.addConstraint(Sketcher.Constraint("Radius", 9, Q("17.612387 mm")))
sketch7.addConstraint(Sketcher.Constraint("Radius", 11, Q("25.612387 mm")))
sketch7.addConstraint(Sketcher.Constraint("DistanceX", -1, 1, 17, 2, Q("13.352899 mm")))
sketch7.addConstraint(Sketcher.Constraint("Distance", 0, Q("8.656169 mm")))
sketch7.addConstraint(Sketcher.Constraint("DistanceX", -1, 1, 0, 2, Q("34.931688 mm")))
pocket5 = doc.addObject("PartDesign::Pocket", "Pocket004")
body2.addObject(pocket5)
pocket5.Profile = sketch7
pocket5.Length = 8
body3 = doc.addObject("PartDesign::Body", "Body002")

# Sketch on XY plane
sketch8 = doc.addObject("Sketcher::SketchObject", "Sketch007")
body3.addObject(sketch8)
sketch8.AttachmentSupport = (doc.getObject("XY_Plane002"), [""])
sketch8.MapMode = "FlatFace"
sketch8.AttachmentOffset = App.Placement(V(0, 0, 50), App.Rotation())
sketch8.addGeometry(Part.LineSegment(V(66, 115, 0), V(66, 75, 0)), False)
sketch8.addGeometry(Part.LineSegment(V(66, 75, 0), V(-66, 75, 0)), False)
sketch8.addGeometry(Part.LineSegment(V(-66, 75, 0), V(-66, 115, 0)), False)
sketch8.addGeometry(Part.LineSegment(V(-66, 115, 0), V(66, 115, 0)), False)
sketch8.addConstraint(Sketcher.Constraint("Coincident", 0, 2, 1, 1))
sketch8.addConstraint(Sketcher.Constraint("Coincident", 1, 2, 2, 1))
sketch8.addConstraint(Sketcher.Constraint("Coincident", 2, 2, 3, 1))
sketch8.addConstraint(Sketcher.Constraint("Coincident", 3, 2, 0, 1))
sketch8.addConstraint(Sketcher.Constraint("Vertical", 0))
sketch8.addConstraint(Sketcher.Constraint("Horizontal", 1))
sketch8.addConstraint(Sketcher.Constraint("Vertical", 2))
sketch8.addConstraint(Sketcher.Constraint("Horizontal", 3))
sketch8.addConstraint(Sketcher.Constraint("DistanceX", 1, 2, 1, 1, Q("132 mm")))
sketch8.addConstraint(Sketcher.Constraint("DistanceY", 0, 2, 0, 1, Q("40 mm")))
sketch8.addConstraint(Sketcher.Constraint("DistanceX", -1, 1, 0, 2, Q("66 mm")))
sketch8.addConstraint(Sketcher.Constraint("DistanceY", -1, 1, 0, 2, Q("75 mm")))
pad3 = doc.addObject("PartDesign::Pad", "Pad002")
body3.addObject(pad3)
pad3.Profile = sketch8
pad3.Length = 85
pad3.Reversed = True

doc.recompute()
